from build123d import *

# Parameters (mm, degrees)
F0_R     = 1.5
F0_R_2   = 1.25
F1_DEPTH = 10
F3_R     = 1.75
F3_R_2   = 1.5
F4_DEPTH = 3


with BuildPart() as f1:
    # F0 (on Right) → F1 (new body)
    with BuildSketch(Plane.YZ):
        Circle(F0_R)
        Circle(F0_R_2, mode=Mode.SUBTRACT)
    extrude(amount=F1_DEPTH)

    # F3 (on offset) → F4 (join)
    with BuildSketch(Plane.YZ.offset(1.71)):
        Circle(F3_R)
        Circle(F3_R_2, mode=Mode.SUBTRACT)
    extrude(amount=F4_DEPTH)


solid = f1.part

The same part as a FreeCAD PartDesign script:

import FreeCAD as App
import Part
import Sketcher
from FreeCAD import Vector
Q = App.Units.Quantity

doc = App.newDocument("Part")
body = doc.addObject("PartDesign::Body", "Body")

sketch1 = doc.addObject("Sketcher::SketchObject", "Sketch")
body.addObject(sketch1)
sketch1.AttachmentSupport = (doc.YZ_Plane, [""])
sketch1.MapMode = "FlatFace"
sketch1.addGeometry(Part.Circle(Vector(0, 0, 0), Vector(0, 0, 1), 1.5), False)
sketch1.addGeometry(Part.Circle(Vector(0, 0, 0), Vector(0, 0, 1), 1.2), False)
sketch1.addConstraint(Sketcher.Constraint("Coincident", 0, 3, -1, 1))
sketch1.addConstraint(Sketcher.Constraint("Coincident", 1, 3, -1, 1))
sketch1.addConstraint(Sketcher.Constraint("Diameter", 0, Q("3 mm")))
sketch1.addConstraint(Sketcher.Constraint("Diameter", 1, Q("2.5 mm")))
pad1 = doc.addObject("PartDesign::Pad", "Pad")
body.addObject(pad1)
pad1.Profile = sketch1
pad1.Length = 10

sketch2 = doc.addObject("Sketcher::SketchObject", "Sketch001")
body.addObject(sketch2)
sketch2.AttachmentSupport = (doc.YZ_Plane, [""])
sketch2.MapMode = "FlatFace"
sketch2.AttachmentOffset = App.Placement(Vector(0, 0, 1.71), App.Rotation())
sketch2.addGeometry(Part.Circle(Vector(0, 0, 0), Vector(0, 0, 1), 1.8), False)
sketch2.addGeometry(Part.Circle(Vector(0, 0, 0), Vector(0, 0, 1), 1.5), False)
sketch2.addConstraint(Sketcher.Constraint("Coincident", 0, 3, -1, 1))
sketch2.addConstraint(Sketcher.Constraint("Coincident", 1, 3, -1, 1))
sketch2.addConstraint(Sketcher.Constraint("Diameter", 1, Q("3 mm")))
sketch2.addConstraint(Sketcher.Constraint("Diameter", 0, Q("3.5 mm")))
pad2 = doc.addObject("PartDesign::Pad", "Pad001")
body.addObject(pad2)
pad2.Profile = sketch2
pad2.Length = 3

doc.recompute()
